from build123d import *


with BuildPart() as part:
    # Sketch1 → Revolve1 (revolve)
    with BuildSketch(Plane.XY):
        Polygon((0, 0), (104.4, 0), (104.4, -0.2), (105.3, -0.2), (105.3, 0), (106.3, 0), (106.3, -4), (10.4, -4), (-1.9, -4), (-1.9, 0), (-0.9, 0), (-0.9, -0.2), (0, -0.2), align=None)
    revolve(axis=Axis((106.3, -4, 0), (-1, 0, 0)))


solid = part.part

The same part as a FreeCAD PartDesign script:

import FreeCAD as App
import Part
import Sketcher

V = App.Vector


def add_polygon(sketch, points):
    """Adds a closed chain of lines whose ends are joined by coincident constraints."""
    first, n = sketch.GeometryCount, len(points)
    for a, b in zip(points, points[1:] + points[:1]):
        sketch.addGeometry(Part.LineSegment(App.Vector(*a, 0), App.Vector(*b, 0)), False)
    for i in range(n):
        sketch.addConstraint(Sketcher.Constraint("Coincident", first + i, 2, first + (i + 1) % n, 1))

doc = App.newDocument("Part")
body = doc.addObject("PartDesign::Body", "Body")

# Sketch on XY plane
sketch1 = body.newObject("Sketcher::SketchObject", "Sketch")
sketch1.AttachmentSupport = (doc.getObject("XY_Plane"), [""])
sketch1.MapMode = "FlatFace"
add_polygon(sketch1, [(104.4, 0), (0, 0), (0, -0.2), (-0.9, -0.2), (-0.9, 0), (-1.9, 0), (-1.9, -4), (106.3, -4), (106.3, 0), (105.3, 0), (105.3, -0.2), (104.4, -0.2)])  # lines 0-11
sketch1.addGeometry(Part.LineSegment(V(106.3, -4, 0), V(-1.9, -4, 0)), True)  # axis
sketch1.addConstraint([
    Sketcher.Constraint("Horizontal", 0),
    Sketcher.Constraint("Vertical", 1),
    Sketcher.Constraint("Horizontal", 2),
    Sketcher.Constraint("Vertical", 3),
    Sketcher.Constraint("Horizontal", 4),
    Sketcher.Constraint("Vertical", 5),
    Sketcher.Constraint("Horizontal", 6),
    Sketcher.Constraint("Vertical", 7),
    Sketcher.Constraint("Horizontal", 8),
    Sketcher.Constraint("Vertical", 9),
    Sketcher.Constraint("Horizontal", 10),
    Sketcher.Constraint("Vertical", 11),
    Sketcher.Constraint("Horizontal", 12),
    Sketcher.Constraint("Coincident", 0, 2, -1, 1),
    Sketcher.Constraint("Coincident", 12, 1, 6, 2),
    Sketcher.Constraint("PointOnObject", 3, 2, -1),
    Sketcher.Constraint("PointOnObject", 7, 2, -1),
    Sketcher.Constraint("Horizontal", 2, 2, 9, 2),
    Sketcher.Constraint("Vertical", 4, 2, 12, 2),
    Sketcher.Constraint("Equal", 4, 8),
    Sketcher.Constraint("Equal", 2, 10),
    Sketcher.Constraint("DistanceX", 4, 2, 4, 1, 1.0),
    Sketcher.Constraint("DistanceY", 5, 2, 5, 1, 4.0),
    Sketcher.Constraint("DistanceX", 0, 2, 0, 1, 104.4),
    Sketcher.Constraint("DistanceX", 2, 2, 2, 1, 0.9),
    Sketcher.Constraint("DistanceY", 1, 2, 1, 1, 0.2),
])
revolution = body.newObject("PartDesign::Revolution", "Revolution")
revolution.Profile = sketch1
revolution.ReferenceAxis = (sketch1, ["Axis0"])
revolution.Angle = 360

doc.recompute()
